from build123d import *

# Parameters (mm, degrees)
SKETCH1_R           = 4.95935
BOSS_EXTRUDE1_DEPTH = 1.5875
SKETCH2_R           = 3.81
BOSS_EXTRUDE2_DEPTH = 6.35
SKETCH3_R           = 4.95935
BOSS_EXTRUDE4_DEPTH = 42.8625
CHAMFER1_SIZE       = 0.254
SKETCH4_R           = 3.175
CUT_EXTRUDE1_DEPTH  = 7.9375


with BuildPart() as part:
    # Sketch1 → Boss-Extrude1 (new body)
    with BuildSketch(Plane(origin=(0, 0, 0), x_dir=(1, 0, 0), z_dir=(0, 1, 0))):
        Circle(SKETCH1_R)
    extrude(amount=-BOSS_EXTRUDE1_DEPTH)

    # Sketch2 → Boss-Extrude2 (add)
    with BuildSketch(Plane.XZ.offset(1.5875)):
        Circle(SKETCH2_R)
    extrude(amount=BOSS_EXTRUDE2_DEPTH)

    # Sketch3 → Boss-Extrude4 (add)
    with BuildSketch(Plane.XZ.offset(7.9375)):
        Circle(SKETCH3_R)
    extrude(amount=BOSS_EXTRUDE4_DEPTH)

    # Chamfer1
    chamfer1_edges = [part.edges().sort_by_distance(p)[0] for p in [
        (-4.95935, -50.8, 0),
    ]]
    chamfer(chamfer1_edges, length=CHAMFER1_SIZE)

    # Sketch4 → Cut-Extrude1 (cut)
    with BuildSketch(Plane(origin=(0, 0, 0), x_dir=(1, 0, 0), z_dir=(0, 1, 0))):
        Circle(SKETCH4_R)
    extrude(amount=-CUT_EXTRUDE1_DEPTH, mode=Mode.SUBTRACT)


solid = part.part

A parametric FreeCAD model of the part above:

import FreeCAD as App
import Part
import Sketcher
Q = App.Units.Quantity


def edges_at(feature, points):
    """Names of the edges that pass closest to the given points."""
    edges = feature.Shape.Edges
    near = lambda p: min(range(len(edges)), key=lambda i: edges[i].distToShape(Part.Vertex(*p))[0])
    return sorted({f"Edge{near(p) + 1}" for p in points})

doc = App.newDocument("Part")
params = doc.addObject("Spreadsheet::Sheet", "Params")
for row, (alias, value) in enumerate([
    ("pad1_length", "0.0625 in"),
    ("sketch2_diameter", "0.3 in"),
    ("pad2_length", "0.25 in"),
    ("pad3_length", "1.6875 in"),
    ("chamfer_size", "0.01 in"),
    ("sketch4_diameter", "0.25 in"),
    ("pocket1_length", "0.3125 in"),
], start=1):
    params.set(f"A{row}", alias)
    params.set(f"B{row}", "=" + value)
    params.setAlias(f"B{row}", alias)

body = doc.addObject("PartDesign::Body", "Body")

# Sketch on XZ plane
sketch1 = doc.addObject("Sketcher::SketchObject", "Sketch")
body.addObject(sketch1)
sketch1.AttachmentSupport = (doc.XZ_Plane, [""])
sketch1.MapMode = "FlatFace"
sketch1.addGeometry(Part.Circle(App.Vector(0, 0, 0), App.Vector(0, 0, 1), 5), False)
sketch1.addConstraint([
    Sketcher.Constraint("Coincident", 0, 3, -1, 1),
    Sketcher.Constraint("Diameter", 0, Q("0.3905 in")),
])
pad1 = doc.addObject("PartDesign::Pad", "Pad")
body.addObject(pad1)
pad1.Profile = sketch1
pad1.setExpression("Length", "Params.pad1_length")

# Sketch on XZ plane
sketch2 = doc.addObject("Sketcher::SketchObject", "Sketch001")
body.addObject(sketch2)
sketch2.AttachmentSupport = (doc.XZ_Plane, [""])
sketch2.MapMode = "FlatFace"
sketch2.AttachmentOffset = App.Placement(App.Vector(0, 0, 0.0625 * 25.4), App.Rotation())
sketch2.addGeometry(Part.Circle(App.Vector(0, 0, 0), App.Vector(0, 0, 1), 3.8), False)
sketch2.addConstraint([
    Sketcher.Constraint("Coincident", 0, 3, -1, 1),
    Sketcher.Constraint("Diameter", 0, Q("0.3 in")),
])
sketch2.setExpression("Constraints[1]", "Params.sketch2_diameter")
pad2 = doc.addObject("PartDesign::Pad", "Pad001")
body.addObject(pad2)
pad2.Profile = sketch2
pad2.setExpression("Length", "Params.pad2_length")

# Sketch on XZ plane
sketch3 = doc.addObject("Sketcher::SketchObject", "Sketch002")
body.addObject(sketch3)
sketch3.AttachmentSupport = (doc.XZ_Plane, [""])
sketch3.MapMode = "FlatFace"
sketch3.AttachmentOffset = App.Placement(App.Vector(0, 0, 0.3125 * 25.4), App.Rotation())
sketch3.addGeometry(Part.Circle(App.Vector(0, 0, 0), App.Vector(0, 0, 1), 5), False)
sketch3.addConstraint([
    Sketcher.Constraint("Coincident", 0, 3, -1, 1),
    Sketcher.Constraint("Diameter", 0, Q("0.3905 in")),
])
pad3 = doc.addObject("PartDesign::Pad", "Pad002")
body.addObject(pad3)
pad3.Profile = sketch3
pad3.setExpression("Length", "Params.pad3_length")
doc.recompute()

chamfer = doc.addObject("PartDesign::Chamfer", "Chamfer")
body.addObject(chamfer)
chamfer.Base = (pad3, edges_at(pad3, [(-4.959, -50.8, 0)]))
chamfer.setExpression("Size", "Params.chamfer_size")

# Sketch on XZ plane
sketch4 = doc.addObject("Sketcher::SketchObject", "Sketch003")
body.addObject(sketch4)
sketch4.AttachmentSupport = (doc.XZ_Plane, [""])
sketch4.MapMode = "FlatFace"
sketch4.addGeometry(Part.Circle(App.Vector(0, 0, 0), App.Vector(0, 0, 1), 3.2), False)
sketch4.addConstraint([
    Sketcher.Constraint("Coincident", 0, 3, -1, 1),
    Sketcher.Constraint("Diameter", 0, Q("0.25 in")),
])
sketch4.setExpression("Constraints[1]", "Params.sketch4_diameter")
pocket1 = doc.addObject("PartDesign::Pocket", "Pocket")
body.addObject(pocket1)
pocket1.Profile = sketch4
pocket1.setExpression("Length", "Params.pocket1_length")
pocket1.Reversed = True

doc.recompute()
